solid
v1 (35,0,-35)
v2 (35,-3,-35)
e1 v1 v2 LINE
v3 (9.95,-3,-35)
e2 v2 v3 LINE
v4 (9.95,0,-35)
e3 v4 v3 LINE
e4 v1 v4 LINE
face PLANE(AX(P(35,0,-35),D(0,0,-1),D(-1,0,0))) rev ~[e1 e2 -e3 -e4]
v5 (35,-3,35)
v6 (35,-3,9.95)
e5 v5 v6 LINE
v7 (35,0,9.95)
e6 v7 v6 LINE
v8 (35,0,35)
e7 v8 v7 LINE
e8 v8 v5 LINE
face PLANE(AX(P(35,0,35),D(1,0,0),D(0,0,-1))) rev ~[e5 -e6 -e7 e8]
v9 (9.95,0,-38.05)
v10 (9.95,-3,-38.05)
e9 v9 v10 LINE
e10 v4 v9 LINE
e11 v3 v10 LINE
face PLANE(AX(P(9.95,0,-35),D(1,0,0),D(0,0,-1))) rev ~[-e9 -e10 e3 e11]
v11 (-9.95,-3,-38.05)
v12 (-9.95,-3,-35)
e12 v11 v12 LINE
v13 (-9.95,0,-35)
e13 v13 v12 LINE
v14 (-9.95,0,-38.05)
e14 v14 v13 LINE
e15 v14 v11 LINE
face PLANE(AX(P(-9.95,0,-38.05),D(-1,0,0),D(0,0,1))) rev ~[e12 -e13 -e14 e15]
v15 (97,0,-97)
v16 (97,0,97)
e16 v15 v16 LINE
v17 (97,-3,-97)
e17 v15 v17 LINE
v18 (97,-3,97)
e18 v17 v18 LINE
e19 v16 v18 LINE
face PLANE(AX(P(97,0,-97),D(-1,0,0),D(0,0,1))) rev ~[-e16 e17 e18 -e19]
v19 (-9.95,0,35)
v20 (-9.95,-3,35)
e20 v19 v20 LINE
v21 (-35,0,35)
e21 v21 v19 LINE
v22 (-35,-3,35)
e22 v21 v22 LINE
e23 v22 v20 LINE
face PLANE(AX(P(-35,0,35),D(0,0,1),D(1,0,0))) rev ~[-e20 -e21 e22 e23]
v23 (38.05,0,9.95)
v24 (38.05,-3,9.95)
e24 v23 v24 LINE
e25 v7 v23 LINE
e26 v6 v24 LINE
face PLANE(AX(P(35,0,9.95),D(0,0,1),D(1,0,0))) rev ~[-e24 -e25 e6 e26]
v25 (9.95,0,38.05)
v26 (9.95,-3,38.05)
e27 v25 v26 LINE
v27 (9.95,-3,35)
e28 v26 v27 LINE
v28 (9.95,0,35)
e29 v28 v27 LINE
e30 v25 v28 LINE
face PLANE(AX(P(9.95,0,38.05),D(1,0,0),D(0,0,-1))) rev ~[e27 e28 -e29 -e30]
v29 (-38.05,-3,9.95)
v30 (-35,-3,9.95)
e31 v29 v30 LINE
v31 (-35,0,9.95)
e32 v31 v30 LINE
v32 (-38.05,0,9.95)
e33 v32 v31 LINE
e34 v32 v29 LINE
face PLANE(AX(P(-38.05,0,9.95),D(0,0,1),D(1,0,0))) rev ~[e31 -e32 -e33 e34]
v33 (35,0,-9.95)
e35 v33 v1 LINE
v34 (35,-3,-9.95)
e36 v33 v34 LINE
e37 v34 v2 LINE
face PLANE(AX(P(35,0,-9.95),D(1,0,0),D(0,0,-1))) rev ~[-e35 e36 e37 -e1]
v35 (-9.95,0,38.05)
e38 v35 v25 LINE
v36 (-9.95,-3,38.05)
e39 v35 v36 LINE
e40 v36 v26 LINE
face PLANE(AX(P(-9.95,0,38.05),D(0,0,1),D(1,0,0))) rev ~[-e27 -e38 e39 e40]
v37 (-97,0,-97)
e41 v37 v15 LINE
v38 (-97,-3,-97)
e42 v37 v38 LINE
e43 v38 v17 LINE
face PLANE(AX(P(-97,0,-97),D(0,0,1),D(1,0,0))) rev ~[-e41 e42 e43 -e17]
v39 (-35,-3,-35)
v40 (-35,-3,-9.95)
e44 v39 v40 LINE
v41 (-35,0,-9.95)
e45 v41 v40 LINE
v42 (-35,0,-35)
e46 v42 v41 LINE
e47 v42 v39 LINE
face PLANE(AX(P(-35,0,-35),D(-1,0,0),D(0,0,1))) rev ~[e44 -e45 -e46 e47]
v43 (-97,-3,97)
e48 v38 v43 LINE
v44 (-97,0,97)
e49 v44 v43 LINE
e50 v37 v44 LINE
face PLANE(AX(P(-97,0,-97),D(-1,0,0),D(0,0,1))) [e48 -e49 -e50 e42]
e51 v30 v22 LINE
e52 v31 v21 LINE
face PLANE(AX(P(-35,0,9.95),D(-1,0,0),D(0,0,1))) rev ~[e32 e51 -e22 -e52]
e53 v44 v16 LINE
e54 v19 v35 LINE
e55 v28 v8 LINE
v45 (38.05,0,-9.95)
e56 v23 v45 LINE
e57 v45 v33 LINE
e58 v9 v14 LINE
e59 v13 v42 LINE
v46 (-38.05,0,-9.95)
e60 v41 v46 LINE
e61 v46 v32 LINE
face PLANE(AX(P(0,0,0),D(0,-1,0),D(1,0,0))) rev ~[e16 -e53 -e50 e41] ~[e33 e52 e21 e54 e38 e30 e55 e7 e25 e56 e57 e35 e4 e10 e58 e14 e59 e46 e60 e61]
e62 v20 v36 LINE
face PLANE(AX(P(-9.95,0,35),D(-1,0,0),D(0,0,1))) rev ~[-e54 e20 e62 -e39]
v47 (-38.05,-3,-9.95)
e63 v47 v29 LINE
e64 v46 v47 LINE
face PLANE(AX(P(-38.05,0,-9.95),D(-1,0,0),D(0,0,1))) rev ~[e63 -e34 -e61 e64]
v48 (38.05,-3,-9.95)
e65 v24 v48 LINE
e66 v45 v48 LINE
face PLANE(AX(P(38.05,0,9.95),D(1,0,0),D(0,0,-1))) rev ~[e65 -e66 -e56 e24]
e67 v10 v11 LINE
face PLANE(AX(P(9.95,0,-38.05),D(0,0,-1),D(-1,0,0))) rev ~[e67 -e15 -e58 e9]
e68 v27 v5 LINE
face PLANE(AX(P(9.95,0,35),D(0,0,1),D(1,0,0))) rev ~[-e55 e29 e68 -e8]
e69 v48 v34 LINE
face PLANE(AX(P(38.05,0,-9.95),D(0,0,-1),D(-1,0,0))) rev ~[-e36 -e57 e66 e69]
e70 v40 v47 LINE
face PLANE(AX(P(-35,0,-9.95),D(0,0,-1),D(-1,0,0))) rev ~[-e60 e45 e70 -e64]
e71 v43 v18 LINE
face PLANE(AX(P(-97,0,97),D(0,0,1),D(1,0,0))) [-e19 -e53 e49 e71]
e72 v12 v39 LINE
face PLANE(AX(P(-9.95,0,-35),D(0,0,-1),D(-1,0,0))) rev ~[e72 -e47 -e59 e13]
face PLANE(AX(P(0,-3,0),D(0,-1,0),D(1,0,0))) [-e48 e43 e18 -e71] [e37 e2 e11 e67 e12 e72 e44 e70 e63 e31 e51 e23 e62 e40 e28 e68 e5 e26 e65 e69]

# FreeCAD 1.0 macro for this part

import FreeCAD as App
import Part
import Sketcher

V = App.Vector


def add_polygon(sketch, points):
    """Adds a closed chain of lines whose ends are joined by coincident constraints."""
    first, n = sketch.GeometryCount, len(points)
    for a, b in zip(points, points[1:] + points[:1]):
        sketch.addGeometry(Part.LineSegment(App.Vector(*a, 0), App.Vector(*b, 0)), False)
    for i in range(n):
        sketch.addConstraint(Sketcher.Constraint("Coincident", first + i, 2, first + (i + 1) % n, 1))

doc = App.newDocument("Part")
body = doc.addObject("PartDesign::Body", "Body")

# Sketch on XZ plane
sketch1 = doc.addObject("Sketcher::SketchObject", "Sketch")
body.addObject(sketch1)
sketch1.AttachmentSupport = (doc.XZ_Plane, [""])
sketch1.MapMode = "FlatFace"
add_polygon(sketch1, [(-97, 97), (-97, -97), (97, -97), (97, 97)])  # lines 0-3
add_polygon(sketch1, [(38, -9.9), (35, -9.9), (35, -35), (9.9, -35), (9.9, -38), (-9.9, -38), (-9.9, -35), (-35, -35), (-35, -9.9), (-38, -9.9), (-38, 9.9), (-35, 9.9), (-35, 35), (-9.9, 35), (-9.9, 38), (9.9, 38), (9.9, 35), (35, 35), (35, 9.9), (38, 9.9)])  # lines 4-23
sketch1.addConstraint([
    Sketcher.Constraint("Vertical", 0),
    Sketcher.Constraint("Horizontal", 1),
    Sketcher.Constraint("Vertical", 2),
    Sketcher.Constraint("Horizontal", 3),
    Sketcher.Constraint("Horizontal", 4),
    Sketcher.Constraint("Vertical", 5),
    Sketcher.Constraint("Horizontal", 6),
    Sketcher.Constraint("Vertical", 7),
    Sketcher.Constraint("Horizontal", 8),
    Sketcher.Constraint("Vertical", 9),
    Sketcher.Constraint("Horizontal", 10),
    Sketcher.Constraint("Vertical", 11),
    Sketcher.Constraint("Horizontal", 12),
    Sketcher.Constraint("Vertical", 13),
    Sketcher.Constraint("Horizontal", 14),
    Sketcher.Constraint("Vertical", 15),
    Sketcher.Constraint("Horizontal", 16),
    Sketcher.Constraint("Vertical", 17),
    Sketcher.Constraint("Horizontal", 18),
    Sketcher.Constraint("Vertical", 19),
    Sketcher.Constraint("Horizontal", 20),
    Sketcher.Constraint("Vertical", 21),
    Sketcher.Constraint("Horizontal", 22),
    Sketcher.Constraint("Vertical", 23),
    Sketcher.Constraint("Symmetric", 0, 2, 2, 2, -1, 1),
    Sketcher.Constraint("Symmetric", 4, 2, 14, 2, -1, 1),
    Sketcher.Constraint("Symmetric", 6, 2, 16, 2, -1, 1),
    Sketcher.Constraint("Symmetric", 8, 2, 18, 2, -1, 1),
    Sketcher.Constraint("Symmetric", 10, 2, 20, 2, -1, 1),
    Sketcher.Constraint("Symmetric", 12, 2, 22, 2, -1, 1),
    Sketcher.Constraint("Symmetric", 6, 2, 9, 2, -2),
    Sketcher.Constraint("Symmetric", 4, 2, 11, 2, -2),
    Sketcher.Constraint("Equal", 3, 0),
    Sketcher.Constraint("Equal", 20, 5),
    Sketcher.Constraint("Equal", 22, 7),
    Sketcher.Constraint("Equal", 18, 13),
    Sketcher.Constraint("DistanceX", 1, 1, 1, 2, 194.0),
    Sketcher.Constraint("DistanceX", 8, 2, 8, 1, 19.9),
    Sketcher.Constraint("DistanceX", -1, 1, 4, 2, 35.0),
    Sketcher.Constraint("DistanceX", 12, 2, 6, 2, 48.0),
])
pad1 = doc.addObject("PartDesign::Pad", "Pad")
body.addObject(pad1)
pad1.Profile = sketch1
pad1.Length = 3

doc.recompute()
